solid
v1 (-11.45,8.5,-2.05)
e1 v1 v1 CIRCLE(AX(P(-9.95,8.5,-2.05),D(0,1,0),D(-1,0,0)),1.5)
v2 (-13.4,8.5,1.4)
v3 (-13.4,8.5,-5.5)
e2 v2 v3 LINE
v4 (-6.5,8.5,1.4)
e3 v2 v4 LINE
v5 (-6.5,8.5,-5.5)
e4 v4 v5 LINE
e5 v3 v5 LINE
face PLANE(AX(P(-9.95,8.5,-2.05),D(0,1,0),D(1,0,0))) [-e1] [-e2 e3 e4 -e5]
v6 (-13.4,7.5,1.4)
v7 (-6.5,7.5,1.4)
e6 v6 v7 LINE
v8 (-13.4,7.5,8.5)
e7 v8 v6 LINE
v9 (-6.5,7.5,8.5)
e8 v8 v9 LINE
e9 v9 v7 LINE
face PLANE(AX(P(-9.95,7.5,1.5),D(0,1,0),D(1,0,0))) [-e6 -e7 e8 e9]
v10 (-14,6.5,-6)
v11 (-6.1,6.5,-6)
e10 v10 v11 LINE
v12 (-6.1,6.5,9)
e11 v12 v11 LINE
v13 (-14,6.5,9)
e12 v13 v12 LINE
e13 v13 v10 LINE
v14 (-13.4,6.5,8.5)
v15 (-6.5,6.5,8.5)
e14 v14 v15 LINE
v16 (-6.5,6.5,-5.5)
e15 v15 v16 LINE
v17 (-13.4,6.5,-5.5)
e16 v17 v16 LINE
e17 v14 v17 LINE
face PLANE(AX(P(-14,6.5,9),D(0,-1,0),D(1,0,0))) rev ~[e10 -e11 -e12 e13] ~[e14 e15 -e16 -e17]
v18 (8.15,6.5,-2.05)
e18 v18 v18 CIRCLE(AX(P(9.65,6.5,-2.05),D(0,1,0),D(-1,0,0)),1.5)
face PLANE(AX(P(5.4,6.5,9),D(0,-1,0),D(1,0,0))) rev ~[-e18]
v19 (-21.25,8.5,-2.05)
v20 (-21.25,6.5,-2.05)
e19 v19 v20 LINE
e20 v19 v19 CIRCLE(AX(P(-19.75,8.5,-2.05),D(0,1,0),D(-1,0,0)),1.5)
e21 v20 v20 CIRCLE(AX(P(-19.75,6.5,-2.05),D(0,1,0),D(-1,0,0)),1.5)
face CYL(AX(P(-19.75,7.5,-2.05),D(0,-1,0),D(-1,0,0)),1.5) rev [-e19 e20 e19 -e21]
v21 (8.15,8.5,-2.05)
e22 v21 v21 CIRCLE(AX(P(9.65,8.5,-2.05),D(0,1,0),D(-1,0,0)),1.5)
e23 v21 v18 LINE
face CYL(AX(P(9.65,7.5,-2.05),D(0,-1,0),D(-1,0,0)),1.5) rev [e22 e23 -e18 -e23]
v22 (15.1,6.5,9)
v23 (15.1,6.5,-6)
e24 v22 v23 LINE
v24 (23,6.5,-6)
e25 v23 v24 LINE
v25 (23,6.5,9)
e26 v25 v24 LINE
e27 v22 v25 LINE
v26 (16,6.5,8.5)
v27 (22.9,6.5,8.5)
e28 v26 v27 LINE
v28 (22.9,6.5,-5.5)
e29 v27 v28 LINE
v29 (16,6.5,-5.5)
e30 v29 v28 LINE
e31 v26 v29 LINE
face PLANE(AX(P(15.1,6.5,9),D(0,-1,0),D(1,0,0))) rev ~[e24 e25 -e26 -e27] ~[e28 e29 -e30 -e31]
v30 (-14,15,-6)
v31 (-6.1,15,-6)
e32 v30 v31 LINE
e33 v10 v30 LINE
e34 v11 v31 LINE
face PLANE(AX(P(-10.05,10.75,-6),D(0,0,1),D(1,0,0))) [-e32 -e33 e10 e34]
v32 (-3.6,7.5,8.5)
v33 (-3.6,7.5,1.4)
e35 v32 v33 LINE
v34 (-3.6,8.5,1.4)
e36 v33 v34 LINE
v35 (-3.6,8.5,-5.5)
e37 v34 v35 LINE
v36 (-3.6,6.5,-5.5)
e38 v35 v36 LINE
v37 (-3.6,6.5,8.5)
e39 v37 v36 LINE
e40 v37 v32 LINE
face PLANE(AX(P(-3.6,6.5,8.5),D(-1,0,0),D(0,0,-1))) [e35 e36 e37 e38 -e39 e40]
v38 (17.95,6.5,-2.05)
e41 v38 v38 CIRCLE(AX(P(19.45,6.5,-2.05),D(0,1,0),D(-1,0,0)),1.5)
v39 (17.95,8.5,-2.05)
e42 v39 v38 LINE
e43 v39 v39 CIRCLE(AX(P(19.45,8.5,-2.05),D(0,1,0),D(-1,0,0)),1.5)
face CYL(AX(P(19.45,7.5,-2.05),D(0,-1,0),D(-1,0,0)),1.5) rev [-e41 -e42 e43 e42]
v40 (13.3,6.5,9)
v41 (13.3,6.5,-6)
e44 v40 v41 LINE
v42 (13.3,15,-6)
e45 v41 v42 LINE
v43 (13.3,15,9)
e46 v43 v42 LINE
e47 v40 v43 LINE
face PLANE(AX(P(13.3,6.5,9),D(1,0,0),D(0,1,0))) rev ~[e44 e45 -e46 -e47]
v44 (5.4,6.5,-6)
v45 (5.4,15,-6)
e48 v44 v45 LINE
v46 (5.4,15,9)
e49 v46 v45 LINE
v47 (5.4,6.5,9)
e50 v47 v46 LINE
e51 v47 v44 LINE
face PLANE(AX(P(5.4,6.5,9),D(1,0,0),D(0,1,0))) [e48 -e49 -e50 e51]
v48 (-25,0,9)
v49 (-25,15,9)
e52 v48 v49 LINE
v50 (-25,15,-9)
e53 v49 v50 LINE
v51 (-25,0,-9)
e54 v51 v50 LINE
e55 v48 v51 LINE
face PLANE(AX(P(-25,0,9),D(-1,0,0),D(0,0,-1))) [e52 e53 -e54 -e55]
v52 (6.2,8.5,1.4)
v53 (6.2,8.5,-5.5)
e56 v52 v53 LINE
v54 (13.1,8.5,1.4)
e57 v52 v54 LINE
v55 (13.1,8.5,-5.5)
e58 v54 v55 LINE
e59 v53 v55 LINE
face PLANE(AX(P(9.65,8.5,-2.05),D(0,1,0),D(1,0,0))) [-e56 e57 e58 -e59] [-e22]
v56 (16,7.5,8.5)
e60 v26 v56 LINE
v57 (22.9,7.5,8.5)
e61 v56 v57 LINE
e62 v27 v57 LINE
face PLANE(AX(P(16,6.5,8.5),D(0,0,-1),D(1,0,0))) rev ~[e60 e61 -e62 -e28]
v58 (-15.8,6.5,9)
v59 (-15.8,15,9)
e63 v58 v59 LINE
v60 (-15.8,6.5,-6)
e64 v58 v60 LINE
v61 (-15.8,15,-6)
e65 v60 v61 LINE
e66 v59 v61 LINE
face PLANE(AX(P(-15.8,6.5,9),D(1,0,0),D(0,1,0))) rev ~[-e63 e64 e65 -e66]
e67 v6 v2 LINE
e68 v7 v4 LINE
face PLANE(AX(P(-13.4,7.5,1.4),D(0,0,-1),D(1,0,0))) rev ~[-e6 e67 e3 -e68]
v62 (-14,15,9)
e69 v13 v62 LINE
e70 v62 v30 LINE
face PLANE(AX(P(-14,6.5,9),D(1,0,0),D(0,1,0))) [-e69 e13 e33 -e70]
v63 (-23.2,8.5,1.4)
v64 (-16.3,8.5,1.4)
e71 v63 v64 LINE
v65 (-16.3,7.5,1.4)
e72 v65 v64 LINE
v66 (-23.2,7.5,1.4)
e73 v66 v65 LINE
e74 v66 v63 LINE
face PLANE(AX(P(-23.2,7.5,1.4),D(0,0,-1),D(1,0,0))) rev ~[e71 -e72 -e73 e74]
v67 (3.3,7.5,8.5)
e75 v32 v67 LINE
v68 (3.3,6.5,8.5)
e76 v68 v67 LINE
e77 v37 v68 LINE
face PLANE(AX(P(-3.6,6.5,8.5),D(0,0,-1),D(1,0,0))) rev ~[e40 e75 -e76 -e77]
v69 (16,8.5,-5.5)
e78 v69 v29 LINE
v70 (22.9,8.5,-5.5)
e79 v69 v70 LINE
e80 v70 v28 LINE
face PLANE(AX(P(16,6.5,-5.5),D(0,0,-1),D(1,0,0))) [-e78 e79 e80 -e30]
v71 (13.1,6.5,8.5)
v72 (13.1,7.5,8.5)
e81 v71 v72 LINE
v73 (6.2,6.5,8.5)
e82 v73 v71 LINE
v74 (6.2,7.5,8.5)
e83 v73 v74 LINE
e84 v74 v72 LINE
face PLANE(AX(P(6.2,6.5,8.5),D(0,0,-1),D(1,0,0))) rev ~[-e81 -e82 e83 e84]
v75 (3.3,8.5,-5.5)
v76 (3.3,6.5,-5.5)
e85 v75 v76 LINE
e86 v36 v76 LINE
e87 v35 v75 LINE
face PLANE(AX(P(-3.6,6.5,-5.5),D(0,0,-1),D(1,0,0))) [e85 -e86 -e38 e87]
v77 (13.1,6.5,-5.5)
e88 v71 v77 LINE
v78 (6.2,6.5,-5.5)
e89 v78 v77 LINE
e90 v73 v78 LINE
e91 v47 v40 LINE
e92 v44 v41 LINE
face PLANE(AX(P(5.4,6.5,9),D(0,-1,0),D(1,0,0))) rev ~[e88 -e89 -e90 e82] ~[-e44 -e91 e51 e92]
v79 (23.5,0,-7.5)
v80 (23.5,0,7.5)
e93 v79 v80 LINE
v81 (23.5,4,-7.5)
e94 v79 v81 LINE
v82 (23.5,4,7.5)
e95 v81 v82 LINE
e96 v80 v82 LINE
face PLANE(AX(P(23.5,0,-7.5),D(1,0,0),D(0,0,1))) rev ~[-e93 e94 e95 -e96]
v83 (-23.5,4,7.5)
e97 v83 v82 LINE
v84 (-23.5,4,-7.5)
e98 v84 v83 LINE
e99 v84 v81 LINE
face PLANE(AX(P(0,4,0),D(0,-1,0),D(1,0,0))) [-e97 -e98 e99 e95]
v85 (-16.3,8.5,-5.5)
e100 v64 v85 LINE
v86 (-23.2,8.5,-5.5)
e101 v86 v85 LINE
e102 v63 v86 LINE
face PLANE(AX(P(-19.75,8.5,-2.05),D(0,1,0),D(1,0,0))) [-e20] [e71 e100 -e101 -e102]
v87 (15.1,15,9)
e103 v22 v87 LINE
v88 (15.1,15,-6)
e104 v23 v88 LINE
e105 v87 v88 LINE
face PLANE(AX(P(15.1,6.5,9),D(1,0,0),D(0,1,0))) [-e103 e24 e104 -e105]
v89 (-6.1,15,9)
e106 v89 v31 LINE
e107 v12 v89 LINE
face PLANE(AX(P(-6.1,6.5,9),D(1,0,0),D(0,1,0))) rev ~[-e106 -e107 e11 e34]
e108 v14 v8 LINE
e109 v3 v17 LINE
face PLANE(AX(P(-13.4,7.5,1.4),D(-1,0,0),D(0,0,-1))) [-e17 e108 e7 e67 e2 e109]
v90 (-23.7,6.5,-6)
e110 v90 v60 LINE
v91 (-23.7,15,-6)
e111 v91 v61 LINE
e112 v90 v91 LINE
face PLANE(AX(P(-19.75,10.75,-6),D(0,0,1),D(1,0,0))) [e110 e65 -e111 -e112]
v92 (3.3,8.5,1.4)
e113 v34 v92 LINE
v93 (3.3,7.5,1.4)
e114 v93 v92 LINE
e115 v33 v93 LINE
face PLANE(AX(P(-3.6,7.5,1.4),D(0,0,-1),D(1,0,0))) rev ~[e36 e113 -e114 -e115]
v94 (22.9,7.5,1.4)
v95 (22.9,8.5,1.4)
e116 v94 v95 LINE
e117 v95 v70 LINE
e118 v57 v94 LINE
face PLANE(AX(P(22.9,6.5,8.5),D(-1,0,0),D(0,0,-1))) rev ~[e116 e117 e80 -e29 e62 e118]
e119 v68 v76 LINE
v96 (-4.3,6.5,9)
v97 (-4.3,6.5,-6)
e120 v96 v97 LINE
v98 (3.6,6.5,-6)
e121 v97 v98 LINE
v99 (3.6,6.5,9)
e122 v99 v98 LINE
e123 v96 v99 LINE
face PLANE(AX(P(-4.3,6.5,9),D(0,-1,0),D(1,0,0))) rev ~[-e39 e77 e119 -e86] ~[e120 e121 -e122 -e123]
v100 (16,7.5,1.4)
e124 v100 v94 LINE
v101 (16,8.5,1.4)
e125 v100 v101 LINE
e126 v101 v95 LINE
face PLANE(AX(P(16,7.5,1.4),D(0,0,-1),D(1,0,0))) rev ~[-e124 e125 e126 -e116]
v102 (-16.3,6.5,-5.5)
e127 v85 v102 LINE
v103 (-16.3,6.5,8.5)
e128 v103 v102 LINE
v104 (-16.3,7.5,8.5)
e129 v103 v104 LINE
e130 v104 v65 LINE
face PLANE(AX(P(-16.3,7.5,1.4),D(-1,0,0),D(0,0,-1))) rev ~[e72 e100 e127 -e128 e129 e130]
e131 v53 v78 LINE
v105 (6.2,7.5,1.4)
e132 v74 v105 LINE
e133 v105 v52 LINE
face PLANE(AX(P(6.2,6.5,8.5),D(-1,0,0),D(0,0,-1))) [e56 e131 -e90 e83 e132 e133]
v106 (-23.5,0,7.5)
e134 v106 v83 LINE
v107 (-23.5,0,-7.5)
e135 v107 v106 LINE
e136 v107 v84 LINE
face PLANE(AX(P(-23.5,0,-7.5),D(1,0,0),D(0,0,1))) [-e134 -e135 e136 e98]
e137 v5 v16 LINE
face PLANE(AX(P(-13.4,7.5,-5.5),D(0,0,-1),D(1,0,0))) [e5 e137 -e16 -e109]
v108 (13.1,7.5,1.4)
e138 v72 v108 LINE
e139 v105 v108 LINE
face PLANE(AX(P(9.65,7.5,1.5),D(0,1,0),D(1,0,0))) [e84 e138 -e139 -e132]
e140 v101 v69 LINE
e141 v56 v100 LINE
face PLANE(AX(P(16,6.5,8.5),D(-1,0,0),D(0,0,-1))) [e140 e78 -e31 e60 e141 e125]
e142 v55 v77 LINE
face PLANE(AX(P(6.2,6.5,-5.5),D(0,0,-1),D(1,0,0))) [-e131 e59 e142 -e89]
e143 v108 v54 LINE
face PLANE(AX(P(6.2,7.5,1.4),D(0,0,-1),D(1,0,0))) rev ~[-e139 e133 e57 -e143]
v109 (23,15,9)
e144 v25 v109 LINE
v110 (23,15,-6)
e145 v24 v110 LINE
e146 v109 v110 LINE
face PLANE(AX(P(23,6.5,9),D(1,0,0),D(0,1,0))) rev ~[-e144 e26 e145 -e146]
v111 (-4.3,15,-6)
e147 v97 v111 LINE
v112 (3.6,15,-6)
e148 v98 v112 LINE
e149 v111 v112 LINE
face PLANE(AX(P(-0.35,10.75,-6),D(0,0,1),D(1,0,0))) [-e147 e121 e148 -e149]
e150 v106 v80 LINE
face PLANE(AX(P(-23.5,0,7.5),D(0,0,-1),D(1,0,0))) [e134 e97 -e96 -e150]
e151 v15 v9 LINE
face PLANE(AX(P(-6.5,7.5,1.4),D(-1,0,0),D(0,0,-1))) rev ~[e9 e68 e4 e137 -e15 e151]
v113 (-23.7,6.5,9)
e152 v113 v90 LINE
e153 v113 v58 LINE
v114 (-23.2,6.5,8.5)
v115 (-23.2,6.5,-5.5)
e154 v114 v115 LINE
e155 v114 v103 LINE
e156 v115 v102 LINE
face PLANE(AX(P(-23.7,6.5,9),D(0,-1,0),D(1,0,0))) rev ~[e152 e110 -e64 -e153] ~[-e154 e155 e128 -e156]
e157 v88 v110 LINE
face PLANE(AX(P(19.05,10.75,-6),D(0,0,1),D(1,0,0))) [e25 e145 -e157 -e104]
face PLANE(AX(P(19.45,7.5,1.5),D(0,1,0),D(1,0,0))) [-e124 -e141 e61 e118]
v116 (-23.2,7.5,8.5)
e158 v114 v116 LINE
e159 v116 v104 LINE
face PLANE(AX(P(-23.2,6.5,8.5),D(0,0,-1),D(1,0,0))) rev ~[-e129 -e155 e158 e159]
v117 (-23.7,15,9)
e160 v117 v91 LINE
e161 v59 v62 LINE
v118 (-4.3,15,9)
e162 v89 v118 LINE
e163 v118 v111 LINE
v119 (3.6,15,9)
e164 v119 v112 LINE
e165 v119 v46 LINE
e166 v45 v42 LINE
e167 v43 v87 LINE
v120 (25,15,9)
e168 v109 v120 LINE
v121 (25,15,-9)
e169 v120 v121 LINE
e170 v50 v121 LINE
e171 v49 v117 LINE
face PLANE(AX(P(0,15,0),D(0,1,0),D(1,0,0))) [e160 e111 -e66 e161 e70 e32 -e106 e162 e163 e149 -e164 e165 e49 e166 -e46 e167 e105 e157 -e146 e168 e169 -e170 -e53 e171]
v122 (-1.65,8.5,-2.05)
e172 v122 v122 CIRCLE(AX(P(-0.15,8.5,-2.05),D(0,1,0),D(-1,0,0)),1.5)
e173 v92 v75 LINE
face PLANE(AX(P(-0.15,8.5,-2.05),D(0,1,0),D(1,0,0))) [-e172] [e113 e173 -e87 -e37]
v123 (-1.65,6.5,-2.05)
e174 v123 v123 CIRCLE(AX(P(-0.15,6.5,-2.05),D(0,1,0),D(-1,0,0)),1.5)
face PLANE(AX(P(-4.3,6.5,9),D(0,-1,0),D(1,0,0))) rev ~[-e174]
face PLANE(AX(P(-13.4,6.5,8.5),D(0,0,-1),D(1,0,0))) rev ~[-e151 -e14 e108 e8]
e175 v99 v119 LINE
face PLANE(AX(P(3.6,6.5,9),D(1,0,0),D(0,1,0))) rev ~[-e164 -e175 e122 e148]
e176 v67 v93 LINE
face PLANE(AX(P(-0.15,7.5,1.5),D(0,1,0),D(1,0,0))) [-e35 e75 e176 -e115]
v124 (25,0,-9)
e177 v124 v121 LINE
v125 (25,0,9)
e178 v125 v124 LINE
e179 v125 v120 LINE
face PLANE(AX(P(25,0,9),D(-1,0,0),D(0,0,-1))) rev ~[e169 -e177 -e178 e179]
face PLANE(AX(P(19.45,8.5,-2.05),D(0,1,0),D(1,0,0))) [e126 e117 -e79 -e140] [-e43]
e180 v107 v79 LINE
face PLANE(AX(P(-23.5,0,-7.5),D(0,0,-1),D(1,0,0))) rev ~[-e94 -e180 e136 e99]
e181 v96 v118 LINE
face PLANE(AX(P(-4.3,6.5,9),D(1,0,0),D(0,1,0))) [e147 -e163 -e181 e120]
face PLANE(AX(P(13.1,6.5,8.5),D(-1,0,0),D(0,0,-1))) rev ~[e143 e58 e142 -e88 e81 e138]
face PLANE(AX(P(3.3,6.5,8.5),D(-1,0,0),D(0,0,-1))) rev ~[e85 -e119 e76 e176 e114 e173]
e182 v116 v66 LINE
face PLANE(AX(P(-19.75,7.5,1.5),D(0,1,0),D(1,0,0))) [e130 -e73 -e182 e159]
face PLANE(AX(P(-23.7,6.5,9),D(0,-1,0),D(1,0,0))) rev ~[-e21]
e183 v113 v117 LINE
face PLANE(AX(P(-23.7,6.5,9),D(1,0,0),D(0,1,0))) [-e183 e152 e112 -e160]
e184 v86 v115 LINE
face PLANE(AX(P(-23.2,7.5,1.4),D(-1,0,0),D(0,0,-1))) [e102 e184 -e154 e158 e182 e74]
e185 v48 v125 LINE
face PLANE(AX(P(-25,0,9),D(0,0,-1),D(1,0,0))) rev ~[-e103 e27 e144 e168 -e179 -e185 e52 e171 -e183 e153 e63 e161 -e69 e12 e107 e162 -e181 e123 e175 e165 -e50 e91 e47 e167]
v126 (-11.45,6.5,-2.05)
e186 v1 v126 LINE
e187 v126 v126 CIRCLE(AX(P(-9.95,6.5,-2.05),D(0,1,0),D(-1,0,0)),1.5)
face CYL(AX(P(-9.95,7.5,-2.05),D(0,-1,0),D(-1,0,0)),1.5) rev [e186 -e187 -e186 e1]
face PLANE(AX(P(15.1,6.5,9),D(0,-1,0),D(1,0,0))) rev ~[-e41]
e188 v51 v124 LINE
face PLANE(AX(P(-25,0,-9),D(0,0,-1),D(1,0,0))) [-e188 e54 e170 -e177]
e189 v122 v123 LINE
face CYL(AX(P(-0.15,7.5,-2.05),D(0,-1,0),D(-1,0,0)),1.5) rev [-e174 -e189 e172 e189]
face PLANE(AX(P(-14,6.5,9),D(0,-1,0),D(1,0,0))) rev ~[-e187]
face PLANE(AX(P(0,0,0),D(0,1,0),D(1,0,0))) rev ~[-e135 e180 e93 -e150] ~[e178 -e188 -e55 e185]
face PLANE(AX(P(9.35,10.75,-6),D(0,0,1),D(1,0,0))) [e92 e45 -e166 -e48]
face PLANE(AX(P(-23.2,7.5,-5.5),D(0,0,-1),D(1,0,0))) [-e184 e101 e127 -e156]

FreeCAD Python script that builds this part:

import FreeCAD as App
import Part
import Sketcher
from FreeCAD import Vector
Q = App.Units.Quantity


def add_polygon(sketch, points):
    """Adds a closed chain of lines whose ends are joined by coincident constraints."""
    first, n = sketch.GeometryCount, len(points)
    for a, b in zip(points, points[1:] + points[:1]):
        sketch.addGeometry(Part.LineSegment(App.Vector(*a, 0), App.Vector(*b, 0)), False)
    for i in range(n):
        sketch.addConstraint(Sketcher.Constraint("Coincident", first + i, 2, first + (i + 1) % n, 1))

doc = App.newDocument("Part")
body = doc.addObject("PartDesign::Body", "Body")

# Sketch on XZ plane
sketch1 = doc.addObject("Sketcher::SketchObject", "Sketch")
body.addObject(sketch1)
sketch1.AttachmentSupport = (doc.XZ_Plane, [""])
sketch1.MapMode = "FlatFace"
add_polygon(sketch1, [(-25, -9), (-25, 9), (25, 9), (25, -9)])  # lines 0-3
sketch1.addConstraint([
    Sketcher.Constraint("Vertical", 0),
    Sketcher.Constraint("Horizontal", 1),
    Sketcher.Constraint("Vertical", 2),
    Sketcher.Constraint("Horizontal", 3),
    Sketcher.Constraint("Symmetric", 0, 2, 2, 2, -1, 1),
    Sketcher.Constraint("DistanceX", 1, 1, 1, 2, Q("50 mm")),
    Sketcher.Constraint("DistanceY", 0, 1, 0, 2, Q("18 mm")),
])
pad1 = doc.addObject("PartDesign::Pad", "Pad")
body.addObject(pad1)
pad1.Profile = sketch1
pad1.Length = 15
pad1.Reversed = True

# Sketch on XY plane
sketch2 = doc.addObject("Sketcher::SketchObject", "Sketch001")
body.addObject(sketch2)
sketch2.AttachmentSupport = (doc.XY_Plane, [""])
sketch2.MapMode = "FlatFace"
sketch2.AttachmentOffset = App.Placement(Vector(0, 0, 9), App.Rotation())
add_polygon(sketch2, [(-23.7, 15), (-23.7, 6.5), (-15.8, 6.5), (-15.8, 15)])  # lines 0-3
add_polygon(sketch2, [(-14, 15), (-14, 6.5), (-6.1, 6.5), (-6.1, 15)])  # lines 4-7
add_polygon(sketch2, [(-4.3, 15), (-4.3, 6.5), (3.6, 6.5), (3.6, 15)])  # lines 8-11
add_polygon(sketch2, [(5.4, 15), (5.4, 6.5), (13.3, 6.5), (13.3, 15)])  # lines 12-15
add_polygon(sketch2, [(15.1, 15), (15.1, 6.5), (23, 6.5), (23, 15)])  # lines 16-19
sketch2.addConstraint([
    Sketcher.Constraint("Vertical", 0),
    Sketcher.Constraint("Horizontal", 1),
    Sketcher.Constraint("Vertical", 2),
    Sketcher.Constraint("Horizontal", 3),
    Sketcher.Constraint("Vertical", 4),
    Sketcher.Constraint("Horizontal", 5),
    Sketcher.Constraint("Vertical", 6),
    Sketcher.Constraint("Horizontal", 7),
    Sketcher.Constraint("Vertical", 8),
    Sketcher.Constraint("Horizontal", 9),
    Sketcher.Constraint("Vertical", 10),
    Sketcher.Constraint("Horizontal", 11),
    Sketcher.Constraint("Vertical", 12),
    Sketcher.Constraint("Horizontal", 13),
    Sketcher.Constraint("Vertical", 14),
    Sketcher.Constraint("Horizontal", 15),
    Sketcher.Constraint("Vertical", 16),
    Sketcher.Constraint("Horizontal", 17),
    Sketcher.Constraint("Vertical", 18),
    Sketcher.Constraint("Horizontal", 19),
    Sketcher.Constraint("Horizontal", 1, 2, 4, 2),
    Sketcher.Constraint("Horizontal", 3, 2, 6, 2),
    Sketcher.Constraint("Horizontal", 5, 2, 8, 2),
    Sketcher.Constraint("Horizontal", 7, 2, 10, 2),
    Sketcher.Constraint("Horizontal", 9, 2, 12, 2),
    Sketcher.Constraint("Horizontal", 11, 2, 14, 2),
    Sketcher.Constraint("Horizontal", 13, 2, 16, 2),
    Sketcher.Constraint("Horizontal", 15, 2, 18, 2),
    Sketcher.Constraint("Equal", 3, 5),
    Sketcher.Constraint("Equal", 7, 9),
    Sketcher.Constraint("Equal", 11, 13),
    Sketcher.Constraint("Equal", 15, 17),
    Sketcher.Constraint("DistanceX", 1, 1, 1, 2, Q("7.9 mm")),
    Sketcher.Constraint("DistanceY", 0, 2, 0, 1, Q("8.5 mm")),
    Sketcher.Constraint("DistanceY", -1, 1, 2, 2, Q("15 mm")),
    Sketcher.Constraint("DistanceX", 4, 2, -1, 1, Q("14 mm")),
    Sketcher.Constraint("DistanceX", -1, 1, 17, 2, Q("23 mm")),
    Sketcher.Constraint("DistanceX", 0, 2, -1, 1, Q("23.7 mm")),
    Sketcher.Constraint("DistanceX", 8, 2, -1, 1, Q("4.3 mm")),
    Sketcher.Constraint("DistanceX", -1, 1, 12, 2, Q("5.4 mm")),
])
pocket1 = doc.addObject("PartDesign::Pocket", "Pocket")
body.addObject(pocket1)
pocket1.Profile = sketch2
pocket1.Length = 15

# Sketch on XZ plane
sketch3 = doc.addObject("Sketcher::SketchObject", "Sketch002")
body.addObject(sketch3)
sketch3.AttachmentSupport = (doc.XZ_Plane, [""])
sketch3.MapMode = "FlatFace"
add_polygon(sketch3, [(-23.5, 7.5), (-23.5, -7.5), (23.5, -7.5), (23.5, 7.5)])  # lines 0-3
sketch3.addConstraint([
    Sketcher.Constraint("Vertical", 0),
    Sketcher.Constraint("Horizontal", 1),
    Sketcher.Constraint("Vertical", 2),
    Sketcher.Constraint("Horizontal", 3),
    Sketcher.Constraint("Symmetric", 0, 2, 2, 2, -1, 1),
    Sketcher.Constraint("DistanceX", 1, 1, 1, 2, Q("47 mm")),
    Sketcher.Constraint("DistanceY", 0, 2, 0, 1, Q("15 mm")),
])
pocket2 = doc.addObject("PartDesign::Pocket", "Pocket001")
body.addObject(pocket2)
pocket2.Profile = sketch3
pocket2.Length = 4

# Sketch on XZ plane
sketch4 = doc.addObject("Sketcher::SketchObject", "Sketch003")
body.addObject(sketch4)
sketch4.AttachmentSupport = (doc.XZ_Plane, [""])
sketch4.MapMode = "FlatFace"
sketch4.AttachmentOffset = App.Placement(Vector(0, 0, -6.5), App.Rotation())
add_polygon(sketch4, [(-23.2, -5.5), (-23.2, 8.5), (-16.3, 8.5), (-16.3, -5.5)])  # lines 0-3
sketch4.addGeometry(Part.Circle(Vector(-19.75, -2.05, 0), Vector(0, 0, 1), 1.5), False)  # 4
sketch4.addConstraint([
    Sketcher.Constraint("Vertical", 0),
    Sketcher.Constraint("Horizontal", 1),
    Sketcher.Constraint("Vertical", 2),
    Sketcher.Constraint("Horizontal", 3),
    Sketcher.Constraint("Diameter", 4, Q("3 mm")),
    Sketcher.Constraint("DistanceY", 0, 1, 0, 2, Q("14 mm")),
    Sketcher.Constraint("DistanceX", 1, 1, 1, 2, Q("6.9 mm")),
    Sketcher.Constraint("DistanceX", 0, 2, -1, 1, Q("23.2 mm")),
    Sketcher.Constraint("DistanceY", -1, 1, 0, 2, Q("8.5 mm")),
    Sketcher.Constraint("DistanceX", 4, 3, -1, 1, Q("19.75 mm")),
    Sketcher.Constraint("DistanceY", 4, 3, -1, 1, Q("2.05 mm")),
])
pad2 = doc.addObject("PartDesign::Pad", "Pad001")
body.addObject(pad2)
pad2.Profile = sketch4
pad2.Length = 1
pad2.Reversed = True
doc.recompute()

linearpattern = doc.addObject("PartDesign::LinearPattern", "LinearPattern")
body.addObject(linearpattern)
linearpattern.Originals = [pad2]
linearpattern.Direction = (doc.X_Axis, [""])
linearpattern.Mode = "offset"
linearpattern.Offset = 9.8
linearpattern.Occurrences = 5
body.Tip = linearpattern

# Sketch on XZ plane
sketch5 = doc.addObject("Sketcher::SketchObject", "Sketch004")
body.addObject(sketch5)
sketch5.AttachmentSupport = (doc.XZ_Plane, [""])
sketch5.MapMode = "FlatFace"
sketch5.AttachmentOffset = App.Placement(Vector(0, 0, -7.5), App.Rotation())
add_polygon(sketch5, [(-23.2, -5.5), (-23.2, 1.4), (-16.3, 1.4), (-16.3, -5.5)])  # lines 0-3
sketch5.addGeometry(Part.Circle(Vector(-19.75, -2.05, 0), Vector(0, 0, 1), 1.5), False)  # 4
sketch5.addConstraint([
    Sketcher.Constraint("Vertical", 0),
    Sketcher.Constraint("Horizontal", 1),
    Sketcher.Constraint("Vertical", 2),
    Sketcher.Constraint("Horizontal", 3),
    Sketcher.Constraint("Equal", 3, 0),
    Sketcher.Constraint("Diameter", 4, Q("3 mm")),
    Sketcher.Constraint("DistanceX", 1, 1, 1, 2, Q("6.9 mm")),
    Sketcher.Constraint("DistanceX", 0, 2, -1, 1, Q("23.2 mm")),
    Sketcher.Constraint("DistanceY", -1, 1, 0, 2, Q("1.4 mm")),
    Sketcher.Constraint("DistanceX", 4, 3, -1, 1, Q("19.75 mm")),
    Sketcher.Constraint("DistanceY", 4, 3, -1, 1, Q("2.05 mm")),
])
pad3 = doc.addObject("PartDesign::Pad", "Pad002")
body.addObject(pad3)
pad3.Profile = sketch5
pad3.Length = 1
pad3.Reversed = True
doc.recompute()

linearpattern2 = doc.addObject("PartDesign::LinearPattern", "LinearPattern001")
body.addObject(linearpattern2)
linearpattern2.Originals = [pad3]
linearpattern2.Direction = (doc.X_Axis, [""])
linearpattern2.Mode = "offset"
linearpattern2.Offset = 9.8
linearpattern2.Occurrences = 5
body.Tip = linearpattern2

doc.recompute()
